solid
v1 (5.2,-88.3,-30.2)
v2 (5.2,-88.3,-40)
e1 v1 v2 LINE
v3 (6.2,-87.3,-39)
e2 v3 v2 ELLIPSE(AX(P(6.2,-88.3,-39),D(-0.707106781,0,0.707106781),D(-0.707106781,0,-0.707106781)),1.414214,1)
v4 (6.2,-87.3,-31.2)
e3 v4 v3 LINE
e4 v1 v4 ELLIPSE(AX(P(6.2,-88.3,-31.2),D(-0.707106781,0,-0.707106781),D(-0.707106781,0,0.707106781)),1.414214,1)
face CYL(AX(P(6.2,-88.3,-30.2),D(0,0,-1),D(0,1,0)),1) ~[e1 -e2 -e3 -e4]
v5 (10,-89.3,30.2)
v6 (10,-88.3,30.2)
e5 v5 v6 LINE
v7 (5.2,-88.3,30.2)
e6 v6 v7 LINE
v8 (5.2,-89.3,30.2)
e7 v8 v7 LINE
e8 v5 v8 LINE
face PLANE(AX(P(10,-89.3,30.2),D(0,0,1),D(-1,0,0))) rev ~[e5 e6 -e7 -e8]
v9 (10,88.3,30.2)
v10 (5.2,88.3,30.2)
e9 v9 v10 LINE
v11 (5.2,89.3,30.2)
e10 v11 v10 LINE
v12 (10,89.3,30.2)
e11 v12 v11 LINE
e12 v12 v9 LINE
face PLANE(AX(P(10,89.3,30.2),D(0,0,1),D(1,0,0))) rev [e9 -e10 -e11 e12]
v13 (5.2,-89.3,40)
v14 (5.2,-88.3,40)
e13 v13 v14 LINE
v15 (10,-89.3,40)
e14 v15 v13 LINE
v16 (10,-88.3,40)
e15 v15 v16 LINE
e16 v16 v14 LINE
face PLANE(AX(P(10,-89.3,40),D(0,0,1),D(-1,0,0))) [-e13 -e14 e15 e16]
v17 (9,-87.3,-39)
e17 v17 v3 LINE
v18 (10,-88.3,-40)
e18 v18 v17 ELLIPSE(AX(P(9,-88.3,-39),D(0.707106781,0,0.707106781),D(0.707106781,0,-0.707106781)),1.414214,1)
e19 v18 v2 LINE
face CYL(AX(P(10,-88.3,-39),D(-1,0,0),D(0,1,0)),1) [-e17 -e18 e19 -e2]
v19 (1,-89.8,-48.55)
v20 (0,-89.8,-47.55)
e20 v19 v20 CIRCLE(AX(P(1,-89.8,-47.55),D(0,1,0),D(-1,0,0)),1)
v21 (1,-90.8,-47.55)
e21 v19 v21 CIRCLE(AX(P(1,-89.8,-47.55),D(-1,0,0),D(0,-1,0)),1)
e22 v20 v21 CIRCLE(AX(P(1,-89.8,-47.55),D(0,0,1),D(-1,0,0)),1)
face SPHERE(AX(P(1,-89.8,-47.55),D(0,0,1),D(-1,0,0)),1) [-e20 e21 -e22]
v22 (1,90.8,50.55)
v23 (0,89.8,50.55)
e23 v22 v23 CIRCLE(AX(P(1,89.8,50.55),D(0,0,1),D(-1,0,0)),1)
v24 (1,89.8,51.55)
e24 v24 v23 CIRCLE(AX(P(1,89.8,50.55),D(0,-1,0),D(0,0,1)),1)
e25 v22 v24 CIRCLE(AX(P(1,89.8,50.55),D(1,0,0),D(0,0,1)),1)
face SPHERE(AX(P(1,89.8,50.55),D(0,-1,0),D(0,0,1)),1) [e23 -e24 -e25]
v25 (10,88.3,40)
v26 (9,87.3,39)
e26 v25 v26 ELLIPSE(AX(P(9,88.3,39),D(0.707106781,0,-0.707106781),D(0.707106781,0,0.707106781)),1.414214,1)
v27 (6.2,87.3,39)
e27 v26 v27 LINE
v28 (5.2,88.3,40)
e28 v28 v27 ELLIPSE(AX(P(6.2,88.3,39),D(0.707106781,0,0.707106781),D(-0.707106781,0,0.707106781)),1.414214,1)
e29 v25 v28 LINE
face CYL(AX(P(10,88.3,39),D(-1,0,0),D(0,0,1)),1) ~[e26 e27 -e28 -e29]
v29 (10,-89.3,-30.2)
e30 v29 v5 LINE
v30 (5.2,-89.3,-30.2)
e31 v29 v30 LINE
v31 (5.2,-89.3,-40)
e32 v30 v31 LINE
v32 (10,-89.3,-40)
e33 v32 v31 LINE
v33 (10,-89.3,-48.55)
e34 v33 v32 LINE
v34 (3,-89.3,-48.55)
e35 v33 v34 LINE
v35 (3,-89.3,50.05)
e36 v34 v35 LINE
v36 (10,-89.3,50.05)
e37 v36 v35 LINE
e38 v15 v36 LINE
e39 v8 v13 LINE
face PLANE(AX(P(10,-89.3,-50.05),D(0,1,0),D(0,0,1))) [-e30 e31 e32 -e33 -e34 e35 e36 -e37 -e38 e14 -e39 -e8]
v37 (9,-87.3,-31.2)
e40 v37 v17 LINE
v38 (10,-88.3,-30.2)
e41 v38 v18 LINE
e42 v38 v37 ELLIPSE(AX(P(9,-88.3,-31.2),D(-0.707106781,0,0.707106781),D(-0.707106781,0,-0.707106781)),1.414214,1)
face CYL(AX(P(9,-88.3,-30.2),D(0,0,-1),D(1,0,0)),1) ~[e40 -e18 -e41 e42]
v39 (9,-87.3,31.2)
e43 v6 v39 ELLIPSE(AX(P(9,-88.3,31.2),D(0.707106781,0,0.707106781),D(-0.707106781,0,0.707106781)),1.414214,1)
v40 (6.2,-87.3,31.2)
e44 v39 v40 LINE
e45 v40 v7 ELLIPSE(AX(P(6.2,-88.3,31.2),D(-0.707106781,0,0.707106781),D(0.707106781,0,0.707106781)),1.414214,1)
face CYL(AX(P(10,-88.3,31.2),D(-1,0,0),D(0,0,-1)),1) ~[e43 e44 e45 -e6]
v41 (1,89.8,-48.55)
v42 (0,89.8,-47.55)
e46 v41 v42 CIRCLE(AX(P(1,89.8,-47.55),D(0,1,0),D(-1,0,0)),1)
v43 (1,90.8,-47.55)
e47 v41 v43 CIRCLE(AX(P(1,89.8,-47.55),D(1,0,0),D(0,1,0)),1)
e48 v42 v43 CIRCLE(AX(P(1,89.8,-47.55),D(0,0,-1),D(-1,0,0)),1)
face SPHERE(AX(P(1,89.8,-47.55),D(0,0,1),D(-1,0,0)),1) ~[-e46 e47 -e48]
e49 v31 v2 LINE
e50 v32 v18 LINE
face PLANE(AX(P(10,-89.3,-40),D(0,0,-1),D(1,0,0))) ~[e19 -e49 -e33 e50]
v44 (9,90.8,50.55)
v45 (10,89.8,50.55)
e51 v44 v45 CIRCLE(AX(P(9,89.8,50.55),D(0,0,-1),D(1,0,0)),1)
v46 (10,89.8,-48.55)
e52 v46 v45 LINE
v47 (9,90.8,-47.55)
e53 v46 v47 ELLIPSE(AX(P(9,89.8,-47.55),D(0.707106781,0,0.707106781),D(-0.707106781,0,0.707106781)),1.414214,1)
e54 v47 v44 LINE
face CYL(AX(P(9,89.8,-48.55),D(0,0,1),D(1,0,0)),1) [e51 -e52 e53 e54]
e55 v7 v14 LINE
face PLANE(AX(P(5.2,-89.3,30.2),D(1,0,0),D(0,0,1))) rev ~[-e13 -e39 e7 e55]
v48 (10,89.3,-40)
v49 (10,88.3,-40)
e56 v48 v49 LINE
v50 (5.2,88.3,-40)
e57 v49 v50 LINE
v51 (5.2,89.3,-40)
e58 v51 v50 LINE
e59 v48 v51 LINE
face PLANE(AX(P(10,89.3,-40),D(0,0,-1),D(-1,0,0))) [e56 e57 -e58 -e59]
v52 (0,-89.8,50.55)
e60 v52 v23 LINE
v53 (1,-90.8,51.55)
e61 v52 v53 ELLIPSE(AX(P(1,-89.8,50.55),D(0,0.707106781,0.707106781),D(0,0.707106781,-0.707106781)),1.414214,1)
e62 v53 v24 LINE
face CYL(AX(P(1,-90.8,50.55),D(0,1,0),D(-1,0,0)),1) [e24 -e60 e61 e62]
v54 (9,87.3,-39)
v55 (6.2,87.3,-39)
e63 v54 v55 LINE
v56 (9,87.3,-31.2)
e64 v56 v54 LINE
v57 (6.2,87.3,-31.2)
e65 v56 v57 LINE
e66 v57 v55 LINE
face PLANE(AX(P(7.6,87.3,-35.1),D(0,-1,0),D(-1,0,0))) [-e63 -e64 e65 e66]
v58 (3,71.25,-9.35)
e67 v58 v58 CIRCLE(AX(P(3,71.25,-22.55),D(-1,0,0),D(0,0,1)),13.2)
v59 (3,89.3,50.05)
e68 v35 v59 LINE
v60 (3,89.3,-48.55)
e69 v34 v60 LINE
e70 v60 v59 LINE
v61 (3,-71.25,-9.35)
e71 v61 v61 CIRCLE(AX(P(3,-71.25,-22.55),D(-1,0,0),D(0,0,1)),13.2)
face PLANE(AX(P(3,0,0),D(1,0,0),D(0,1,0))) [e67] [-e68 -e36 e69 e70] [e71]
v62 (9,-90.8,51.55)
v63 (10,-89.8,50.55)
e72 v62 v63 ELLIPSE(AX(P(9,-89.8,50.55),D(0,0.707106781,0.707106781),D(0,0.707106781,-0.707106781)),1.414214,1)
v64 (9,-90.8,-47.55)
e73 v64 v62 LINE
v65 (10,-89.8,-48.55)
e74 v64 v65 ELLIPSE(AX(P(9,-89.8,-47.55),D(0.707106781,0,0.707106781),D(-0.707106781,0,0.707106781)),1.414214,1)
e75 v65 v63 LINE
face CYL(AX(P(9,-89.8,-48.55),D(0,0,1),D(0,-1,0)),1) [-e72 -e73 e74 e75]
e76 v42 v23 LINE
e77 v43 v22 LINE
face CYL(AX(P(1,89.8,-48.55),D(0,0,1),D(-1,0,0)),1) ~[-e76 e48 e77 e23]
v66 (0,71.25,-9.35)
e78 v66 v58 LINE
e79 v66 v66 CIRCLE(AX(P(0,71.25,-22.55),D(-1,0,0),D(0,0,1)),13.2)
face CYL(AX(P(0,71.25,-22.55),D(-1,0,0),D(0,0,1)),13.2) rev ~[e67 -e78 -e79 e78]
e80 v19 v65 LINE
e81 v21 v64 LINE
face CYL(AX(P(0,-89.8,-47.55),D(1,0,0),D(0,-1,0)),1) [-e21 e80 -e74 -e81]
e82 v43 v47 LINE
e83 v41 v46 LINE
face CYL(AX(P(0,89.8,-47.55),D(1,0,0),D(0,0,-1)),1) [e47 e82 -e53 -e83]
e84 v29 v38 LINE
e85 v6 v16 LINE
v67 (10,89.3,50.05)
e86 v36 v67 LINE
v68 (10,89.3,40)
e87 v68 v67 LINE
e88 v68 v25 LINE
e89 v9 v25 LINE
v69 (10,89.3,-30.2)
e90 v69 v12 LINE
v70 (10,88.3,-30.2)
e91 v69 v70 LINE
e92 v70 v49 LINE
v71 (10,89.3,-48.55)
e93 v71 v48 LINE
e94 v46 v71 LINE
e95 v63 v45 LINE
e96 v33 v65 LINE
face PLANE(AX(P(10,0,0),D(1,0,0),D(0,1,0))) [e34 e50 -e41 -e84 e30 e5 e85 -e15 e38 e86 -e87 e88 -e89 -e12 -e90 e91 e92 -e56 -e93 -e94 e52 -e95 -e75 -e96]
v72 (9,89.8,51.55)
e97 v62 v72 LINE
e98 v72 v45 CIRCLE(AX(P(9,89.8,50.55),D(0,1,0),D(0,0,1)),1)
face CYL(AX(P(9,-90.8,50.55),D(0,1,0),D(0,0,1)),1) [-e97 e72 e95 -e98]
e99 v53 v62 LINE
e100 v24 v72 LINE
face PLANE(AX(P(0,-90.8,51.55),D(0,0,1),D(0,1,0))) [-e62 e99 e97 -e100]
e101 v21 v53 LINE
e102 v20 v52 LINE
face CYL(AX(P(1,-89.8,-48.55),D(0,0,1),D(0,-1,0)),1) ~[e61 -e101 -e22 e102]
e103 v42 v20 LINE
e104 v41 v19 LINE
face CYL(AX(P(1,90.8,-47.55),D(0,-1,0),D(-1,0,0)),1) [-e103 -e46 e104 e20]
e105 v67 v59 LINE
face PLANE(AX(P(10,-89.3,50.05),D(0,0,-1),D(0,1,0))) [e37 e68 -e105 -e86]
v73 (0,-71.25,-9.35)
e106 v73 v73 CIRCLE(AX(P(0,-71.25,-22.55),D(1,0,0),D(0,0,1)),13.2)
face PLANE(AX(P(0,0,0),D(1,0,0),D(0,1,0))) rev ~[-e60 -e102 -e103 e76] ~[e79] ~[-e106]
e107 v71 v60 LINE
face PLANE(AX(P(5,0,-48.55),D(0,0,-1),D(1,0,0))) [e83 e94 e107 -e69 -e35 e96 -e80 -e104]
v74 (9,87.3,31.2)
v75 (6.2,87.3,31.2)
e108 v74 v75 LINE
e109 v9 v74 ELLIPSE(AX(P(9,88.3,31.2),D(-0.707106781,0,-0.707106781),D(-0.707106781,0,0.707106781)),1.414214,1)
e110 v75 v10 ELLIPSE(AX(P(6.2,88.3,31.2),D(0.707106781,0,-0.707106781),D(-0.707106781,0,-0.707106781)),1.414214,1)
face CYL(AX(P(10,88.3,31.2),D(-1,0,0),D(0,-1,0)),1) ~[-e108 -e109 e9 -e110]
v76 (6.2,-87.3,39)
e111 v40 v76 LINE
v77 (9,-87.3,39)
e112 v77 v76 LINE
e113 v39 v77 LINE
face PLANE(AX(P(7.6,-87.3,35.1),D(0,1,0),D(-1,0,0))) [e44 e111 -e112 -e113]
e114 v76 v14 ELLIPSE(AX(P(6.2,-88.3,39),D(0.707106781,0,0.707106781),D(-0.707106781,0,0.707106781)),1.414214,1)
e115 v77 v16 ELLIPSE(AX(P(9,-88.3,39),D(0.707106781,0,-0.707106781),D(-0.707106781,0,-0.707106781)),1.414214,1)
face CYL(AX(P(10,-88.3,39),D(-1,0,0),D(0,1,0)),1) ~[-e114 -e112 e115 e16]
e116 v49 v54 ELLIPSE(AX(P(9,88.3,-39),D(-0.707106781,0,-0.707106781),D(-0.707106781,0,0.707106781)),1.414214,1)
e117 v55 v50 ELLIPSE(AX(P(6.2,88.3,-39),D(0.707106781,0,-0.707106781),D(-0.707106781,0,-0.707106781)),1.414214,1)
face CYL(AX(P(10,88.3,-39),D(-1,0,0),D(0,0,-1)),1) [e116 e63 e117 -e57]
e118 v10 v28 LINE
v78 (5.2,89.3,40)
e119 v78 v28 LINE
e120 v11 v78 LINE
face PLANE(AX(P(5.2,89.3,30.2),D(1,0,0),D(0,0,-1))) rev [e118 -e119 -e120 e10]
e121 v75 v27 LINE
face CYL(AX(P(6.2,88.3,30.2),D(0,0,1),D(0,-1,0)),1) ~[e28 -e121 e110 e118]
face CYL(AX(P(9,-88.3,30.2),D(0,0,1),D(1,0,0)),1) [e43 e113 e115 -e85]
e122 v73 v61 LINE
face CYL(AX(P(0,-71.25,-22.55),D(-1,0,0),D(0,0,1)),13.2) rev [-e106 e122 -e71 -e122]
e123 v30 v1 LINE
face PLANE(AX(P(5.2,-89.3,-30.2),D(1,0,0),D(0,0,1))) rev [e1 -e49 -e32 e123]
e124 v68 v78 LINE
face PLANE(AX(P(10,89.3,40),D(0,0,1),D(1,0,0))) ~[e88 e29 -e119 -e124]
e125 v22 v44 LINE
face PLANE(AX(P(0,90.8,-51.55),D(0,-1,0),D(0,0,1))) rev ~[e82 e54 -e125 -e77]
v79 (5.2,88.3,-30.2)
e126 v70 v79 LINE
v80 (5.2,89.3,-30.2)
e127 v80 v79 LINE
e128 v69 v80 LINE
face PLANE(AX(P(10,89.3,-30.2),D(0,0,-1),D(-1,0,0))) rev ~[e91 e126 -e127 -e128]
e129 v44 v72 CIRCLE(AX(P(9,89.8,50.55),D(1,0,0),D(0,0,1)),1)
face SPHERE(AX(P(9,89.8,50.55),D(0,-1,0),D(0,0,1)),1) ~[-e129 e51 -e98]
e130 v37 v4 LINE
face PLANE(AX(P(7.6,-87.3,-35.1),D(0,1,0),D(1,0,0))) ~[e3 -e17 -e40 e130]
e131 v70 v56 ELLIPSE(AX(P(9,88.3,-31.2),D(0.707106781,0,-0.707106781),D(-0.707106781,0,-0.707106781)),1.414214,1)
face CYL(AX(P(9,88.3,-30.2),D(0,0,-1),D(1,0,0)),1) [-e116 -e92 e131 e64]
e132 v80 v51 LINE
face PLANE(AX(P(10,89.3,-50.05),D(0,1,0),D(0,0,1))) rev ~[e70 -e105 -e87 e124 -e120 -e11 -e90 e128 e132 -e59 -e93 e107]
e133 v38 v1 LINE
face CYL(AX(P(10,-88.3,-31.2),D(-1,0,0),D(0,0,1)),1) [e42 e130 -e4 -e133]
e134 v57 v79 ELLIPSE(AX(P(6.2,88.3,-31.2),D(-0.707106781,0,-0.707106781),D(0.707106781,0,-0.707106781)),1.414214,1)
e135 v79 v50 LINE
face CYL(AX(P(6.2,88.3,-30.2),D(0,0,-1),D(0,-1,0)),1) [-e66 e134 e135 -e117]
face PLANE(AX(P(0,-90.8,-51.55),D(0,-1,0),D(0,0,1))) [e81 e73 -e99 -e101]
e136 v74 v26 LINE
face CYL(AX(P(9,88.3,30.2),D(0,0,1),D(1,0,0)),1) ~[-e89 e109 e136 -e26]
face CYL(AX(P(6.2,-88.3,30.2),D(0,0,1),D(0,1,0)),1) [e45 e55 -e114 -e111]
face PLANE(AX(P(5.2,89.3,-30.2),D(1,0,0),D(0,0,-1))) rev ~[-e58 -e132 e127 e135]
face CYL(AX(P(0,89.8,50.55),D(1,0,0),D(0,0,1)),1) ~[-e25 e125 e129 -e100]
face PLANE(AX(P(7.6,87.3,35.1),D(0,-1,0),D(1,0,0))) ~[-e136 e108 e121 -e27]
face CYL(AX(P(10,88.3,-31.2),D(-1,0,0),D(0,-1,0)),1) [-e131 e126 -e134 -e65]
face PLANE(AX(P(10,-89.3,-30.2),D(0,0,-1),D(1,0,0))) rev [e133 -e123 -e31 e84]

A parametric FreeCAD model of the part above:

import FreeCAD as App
import Part
import Sketcher

V = App.Vector


def edges_at(feature, points):
    """Names of the edges that pass closest to the given points."""
    edges = feature.Shape.Edges
    near = lambda p: min(range(len(edges)), key=lambda i: edges[i].distToShape(Part.Vertex(*p))[0])
    return sorted({f"Edge{near(p) + 1}" for p in points})


def add_polygon(sketch, points):
    """Adds a closed chain of lines whose ends are joined by coincident constraints."""
    first, n = sketch.GeometryCount, len(points)
    for a, b in zip(points, points[1:] + points[:1]):
        sketch.addGeometry(Part.LineSegment(App.Vector(*a, 0), App.Vector(*b, 0)), False)
    for i in range(n):
        sketch.addConstraint(Sketcher.Constraint("Coincident", first + i, 2, first + (i + 1) % n, 1))

doc = App.newDocument("Part")
body = doc.addObject("PartDesign::Body", "Body")

sketch1 = body.newObject("Sketcher::SketchObject", "Sketch")
sketch1.AttachmentSupport = (doc.getObject("YZ_Plane"), [""])
sketch1.MapMode = "FlatFace"
add_polygon(sketch1, [(-90.8, 51.55), (-90.8, -51.55), (90.8, -51.55), (90.8, 51.55)])
sketch1.addConstraint(Sketcher.Constraint("Vertical", 0))
sketch1.addConstraint(Sketcher.Constraint("Horizontal", 1))
sketch1.addConstraint(Sketcher.Constraint("Vertical", 2))
sketch1.addConstraint(Sketcher.Constraint("Horizontal", 3))
sketch1.addConstraint(Sketcher.Constraint("Symmetric", 0, 2, 2, 2, -1, 1))
sketch1.addConstraint(Sketcher.Constraint("DistanceX", 1, 1, 1, 2, 181.6))
sketch1.addConstraint(Sketcher.Constraint("DistanceY", 0, 2, 0, 1, 103.1))
pad1 = body.newObject("PartDesign::Pad", "Pad")
pad1.Profile = sketch1
pad1.Length = 10

sketch2 = body.newObject("Sketcher::SketchObject", "Sketch001")
sketch2.AttachmentSupport = (doc.getObject("YZ_Plane"), [""])
sketch2.MapMode = "FlatFace"
sketch2.AttachmentOffset = App.Placement(V(0, 0, 10), App.Rotation())
add_polygon(sketch2, [(-89.3, 50.05), (-89.3, -50.05), (89.3, -50.05), (89.3, 50.05)])
sketch2.addConstraint(Sketcher.Constraint("Vertical", 0))
sketch2.addConstraint(Sketcher.Constraint("Horizontal", 1))
sketch2.addConstraint(Sketcher.Constraint("Vertical", 2))
sketch2.addConstraint(Sketcher.Constraint("Horizontal", 3))
sketch2.addConstraint(Sketcher.Constraint("Symmetric", 0, 2, 2, 2, -1, 1))
sketch2.addConstraint(Sketcher.Constraint("DistanceX", 1, 1, 1, 2, 178.6))
sketch2.addConstraint(Sketcher.Constraint("DistanceY", 0, 2, 0, 1, 100.1))
pocket1 = body.newObject("PartDesign::Pocket", "Pocket")
pocket1.Profile = sketch2
pocket1.Length = 7

sketch3 = body.newObject("Sketcher::SketchObject", "Sketch002")
sketch3.AttachmentSupport = (doc.getObject("XZ_Plane"), [""])
sketch3.MapMode = "FlatFace"
sketch3.AttachmentOffset = App.Placement(V(0, 0, 89.3), App.Rotation())
add_polygon(sketch3, [(10, 40), (10, 30.2), (5.2, 30.2), (5.2, 40)])
sketch3.addConstraint(Sketcher.Constraint("Vertical", 0))
sketch3.addConstraint(Sketcher.Constraint("Horizontal", 1))
sketch3.addConstraint(Sketcher.Constraint("Vertical", 2))
sketch3.addConstraint(Sketcher.Constraint("Horizontal", 3))
sketch3.addConstraint(Sketcher.Constraint("DistanceX", 1, 2, 1, 1, 4.8))
sketch3.addConstraint(Sketcher.Constraint("DistanceY", 0, 2, 0, 1, 9.8))
sketch3.addConstraint(Sketcher.Constraint("DistanceX", -1, 1, 0, 2, 10.0))
sketch3.addConstraint(Sketcher.Constraint("DistanceY", -1, 1, 2, 2, 40.0))
pad2 = body.newObject("PartDesign::Pad", "Pad001")
pad2.Profile = sketch3
pad2.Length = 2
pad2.Reversed = True
doc.recompute()

mirrored = body.newObject("PartDesign::Mirrored", "Mirrored")
mirrored.Originals = [pad2]
mirrored.MirrorPlane = (doc.getObject("XY_Plane"), [""])
body.Tip = mirrored
doc.recompute()

mirrored2 = body.newObject("PartDesign::Mirrored", "Mirrored001")
mirrored2.Originals = [pad2]
mirrored2.MirrorPlane = (doc.getObject("XZ_Plane"), [""])
body.Tip = mirrored2

sketch4 = body.newObject("Sketcher::SketchObject", "Sketch003")
sketch4.AttachmentSupport = (doc.getObject("XZ_Plane"), [""])
sketch4.MapMode = "FlatFace"
sketch4.AttachmentOffset = App.Placement(V(0, 0, -89.3), App.Rotation())
add_polygon(sketch4, [(10, -40), (10, -30.2), (5.2, -30.2), (5.2, -40)])
sketch4.addConstraint(Sketcher.Constraint("Vertical", 0))
sketch4.addConstraint(Sketcher.Constraint("Horizontal", 1))
sketch4.addConstraint(Sketcher.Constraint("Vertical", 2))
sketch4.addConstraint(Sketcher.Constraint("Horizontal", 3))
sketch4.addConstraint(Sketcher.Constraint("DistanceX", 1, 2, 1, 1, 4.8))
sketch4.addConstraint(Sketcher.Constraint("DistanceY", 0, 1, 0, 2, 9.8))
sketch4.addConstraint(Sketcher.Constraint("DistanceX", -1, 1, 0, 2, 10.0))
sketch4.addConstraint(Sketcher.Constraint("DistanceY", 2, 2, -1, 1, 40.0))
pad3 = body.newObject("PartDesign::Pad", "Pad002")
pad3.Profile = sketch4
pad3.Length = 2

sketch5 = body.newObject("Sketcher::SketchObject", "Sketch004")
sketch5.AttachmentSupport = (doc.getObject("XY_Plane"), [""])
sketch5.MapMode = "FlatFace"
sketch5.AttachmentOffset = App.Placement(V(0, 0, -51.55), App.Rotation())
add_polygon(sketch5, [(0, -90.8), (0, 90.8), (10, 90.8), (10, -90.8)])
sketch5.addConstraint(Sketcher.Constraint("Vertical", 0))
sketch5.addConstraint(Sketcher.Constraint("Horizontal", 1))
sketch5.addConstraint(Sketcher.Constraint("Vertical", 2))
sketch5.addConstraint(Sketcher.Constraint("Horizontal", 3))
sketch5.addConstraint(Sketcher.Constraint("Symmetric", 0, 2, 3, 2, -1, 1))
sketch5.addConstraint(Sketcher.Constraint("DistanceX", 1, 1, 1, 2, 10.0))
sketch5.addConstraint(Sketcher.Constraint("DistanceY", 0, 1, 0, 2, 181.6))
pocket2 = body.newObject("PartDesign::Pocket", "Pocket001")
pocket2.Profile = sketch5
pocket2.Length = 3
pocket2.Reversed = True
doc.recompute()

fillet = body.newObject("PartDesign::Fillet", "Fillet")
fillet.Base = (pocket2, edges_at(pocket2, [
    (10, 0, 51.55),
    (10, -90.8, 1.5),
    (0, 0, 51.55),
    (0, -90.8, 1.5),
    (5, 90.8, 51.55),
    (0, 90.8, 1.5),
    (10, 90.8, 1.5),
    (0, 0, -48.55),
    (5, -90.8, -48.55),
    (5, 90.8, -48.55),
]))
fillet.Radius = 1
doc.recompute()

fillet2 = body.newObject("PartDesign::Fillet", "Fillet001")
fillet2.Base = (fillet, edges_at(fillet, [
    (5.2, -87.3, 35.1),
    (7.6, -87.3, 40),
    (10, -87.3, 35.1),
    (7.6, -87.3, 30.2),
]))
fillet2.Radius = 1
doc.recompute()

fillet3 = body.newObject("PartDesign::Fillet", "Fillet002")
fillet3.Base = (fillet2, edges_at(fillet2, [
    (10, -87.3, -35.1),
    (7.6, -87.3, -30.2),
    (7.6, -87.3, -40),
    (5.2, -87.3, -35.1),
]))
fillet3.Radius = 1
doc.recompute()

fillet4 = body.newObject("PartDesign::Fillet", "Fillet003")
fillet4.Base = (fillet3, edges_at(fillet3, [
    (5.2, 87.3, -35.1),
    (7.6, 87.3, -40),
    (10, 87.3, -35.1),
    (7.6, 87.3, -30.2),
    (10, 87.3, 35.1),
    (7.6, 87.3, 30.2),
    (7.6, 87.3, 40),
    (5.2, 87.3, 35.1),
]))
fillet4.Radius = 1

sketch6 = body.newObject("Sketcher::SketchObject", "Sketch005")
sketch6.AttachmentSupport = (doc.getObject("YZ_Plane"), [""])
sketch6.MapMode = "FlatFace"
sketch6.addGeometry(Part.Circle(V(71.25, -22.55, 0), V(0, 0, 1), 13.2), False)
sketch6.addConstraint(Sketcher.Constraint("Diameter", 0, 26.4))
sketch6.addConstraint(Sketcher.Constraint("DistanceX", -1, 1, 0, 3, 71.25))
sketch6.addConstraint(Sketcher.Constraint("DistanceY", 0, 3, -1, 1, 22.55))
pocket3 = body.newObject("PartDesign::Pocket", "Pocket002")
pocket3.Profile = sketch6
pocket3.Length = 10
pocket3.Reversed = True
doc.recompute()

mirrored3 = body.newObject("PartDesign::Mirrored", "Mirrored002")
mirrored3.Originals = [pocket3]
mirrored3.MirrorPlane = (doc.getObject("XZ_Plane"), [""])
body.Tip = mirrored3

doc.recompute()
